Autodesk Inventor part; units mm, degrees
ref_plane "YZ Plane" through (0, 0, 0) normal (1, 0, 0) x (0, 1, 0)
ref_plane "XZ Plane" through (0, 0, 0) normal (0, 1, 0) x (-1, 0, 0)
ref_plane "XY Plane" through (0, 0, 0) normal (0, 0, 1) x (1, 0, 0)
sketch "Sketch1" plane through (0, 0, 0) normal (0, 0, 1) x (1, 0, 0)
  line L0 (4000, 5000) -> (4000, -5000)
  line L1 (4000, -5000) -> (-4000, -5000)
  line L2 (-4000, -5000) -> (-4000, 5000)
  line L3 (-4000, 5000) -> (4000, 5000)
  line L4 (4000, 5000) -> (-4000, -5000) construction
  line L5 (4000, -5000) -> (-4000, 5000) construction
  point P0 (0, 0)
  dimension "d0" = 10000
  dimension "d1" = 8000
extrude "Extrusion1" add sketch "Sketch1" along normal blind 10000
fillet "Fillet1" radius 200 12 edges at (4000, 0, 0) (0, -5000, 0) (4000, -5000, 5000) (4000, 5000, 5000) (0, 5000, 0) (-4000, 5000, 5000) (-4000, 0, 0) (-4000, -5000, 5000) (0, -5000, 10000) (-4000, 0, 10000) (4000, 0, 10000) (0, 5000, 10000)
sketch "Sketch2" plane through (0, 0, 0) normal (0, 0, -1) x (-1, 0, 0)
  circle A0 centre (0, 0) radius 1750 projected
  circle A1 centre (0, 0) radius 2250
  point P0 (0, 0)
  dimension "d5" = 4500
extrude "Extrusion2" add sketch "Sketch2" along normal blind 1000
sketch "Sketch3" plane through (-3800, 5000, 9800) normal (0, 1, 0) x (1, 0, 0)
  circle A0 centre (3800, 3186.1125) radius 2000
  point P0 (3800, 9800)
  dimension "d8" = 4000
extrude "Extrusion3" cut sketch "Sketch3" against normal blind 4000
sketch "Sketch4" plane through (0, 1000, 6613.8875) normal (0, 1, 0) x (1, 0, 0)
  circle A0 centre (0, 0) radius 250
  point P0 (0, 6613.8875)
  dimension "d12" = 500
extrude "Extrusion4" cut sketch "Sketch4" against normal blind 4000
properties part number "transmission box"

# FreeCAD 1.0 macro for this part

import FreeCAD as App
import Part
import Sketcher
from FreeCAD import Vector


def add_polygon(sketch, points):
    """Adds a closed chain of lines whose ends are joined by coincident constraints."""
    first, n = sketch.GeometryCount, len(points)
    for a, b in zip(points, points[1:] + points[:1]):
        sketch.addGeometry(Part.LineSegment(App.Vector(*a, 0), App.Vector(*b, 0)), False)
    for i in range(n):
        sketch.addConstraint(Sketcher.Constraint("Coincident", first + i, 2, first + (i + 1) % n, 1))

doc = App.newDocument("Part")
body = doc.addObject("PartDesign::Body", "Body")

# Sketch on XY plane
sketch1 = doc.addObject("Sketcher::SketchObject", "Sketch")
body.addObject(sketch1)
sketch1.AttachmentSupport = (doc.XY_Plane, [""])
sketch1.MapMode = "FlatFace"
add_polygon(sketch1, [(4000, -5000), (4000, 5000), (-4000, 5000), (-4000, -5000)])  # lines 0-3
sketch1.addConstraint([
    Sketcher.Constraint("Vertical", 0),
    Sketcher.Constraint("Horizontal", 1),
    Sketcher.Constraint("Vertical", 2),
    Sketcher.Constraint("Horizontal", 3),
    Sketcher.Constraint("Symmetric", 0, 2, 2, 2, -1, 1),
    Sketcher.Constraint("DistanceX", 1, 2, 1, 1, 8000.0),
    Sketcher.Constraint("DistanceY", 0, 1, 0, 2, 10000.0),
])
pad1 = doc.addObject("PartDesign::Pad", "Pad")
body.addObject(pad1)
pad1.Profile = sketch1
pad1.Length = 10000
doc.recompute()

fillet = doc.addObject("PartDesign::Fillet", "Fillet")
body.addObject(fillet)
fillet.Base = (pad1, ["Edge1"])
fillet.UseAllEdges = True
fillet.Radius = 200

# Sketch on XY plane
sketch2 = doc.addObject("Sketcher::SketchObject", "Sketch001")
body.addObject(sketch2)
sketch2.AttachmentSupport = (doc.XY_Plane, [""])
sketch2.MapMode = "FlatFace"
sketch2.addGeometry([
    Part.Circle(Vector(0, 0, 0), Vector(0, 0, 1), 2250),
    Part.Circle(Vector(0, 0, 0), Vector(0, 0, 1), 1750),
], False)
sketch2.addConstraint([
    Sketcher.Constraint("Coincident", 0, 3, -1, 1),
    Sketcher.Constraint("Coincident", 1, 3, -1, 1),
    Sketcher.Constraint("Diameter", 0, 4500.0),
    Sketcher.Constraint("Diameter", 1, 3500.0),
])
pad2 = doc.addObject("PartDesign::Pad", "Pad001")
body.addObject(pad2)
pad2.Profile = sketch2
pad2.Length = 1000
pad2.Reversed = True

# Sketch on XZ plane
sketch3 = doc.addObject("Sketcher::SketchObject", "Sketch002")
body.addObject(sketch3)
sketch3.AttachmentSupport = (doc.XZ_Plane, [""])
sketch3.MapMode = "FlatFace"
sketch3.AttachmentOffset = App.Placement(Vector(0, 0, -5000), App.Rotation())
sketch3.addGeometry(Part.Circle(Vector(0, 6614, 0), Vector(0, 0, 1), 2000), False)
sketch3.addConstraint([
    Sketcher.Constraint("PointOnObject", 0, 3, -2),
    Sketcher.Constraint("Diameter", 0, 4000.0),
    Sketcher.Constraint("DistanceY", -1, 1, 0, 3, 6613.8875),
])
pocket1 = doc.addObject("PartDesign::Pocket", "Pocket")
body.addObject(pocket1)
pocket1.Profile = sketch3
pocket1.Length = 4000
pocket1.Reversed = True

# Sketch on XZ plane
sketch4 = doc.addObject("Sketcher::SketchObject", "Sketch003")
body.addObject(sketch4)
sketch4.AttachmentSupport = (doc.XZ_Plane, [""])
sketch4.MapMode = "FlatFace"
sketch4.AttachmentOffset = App.Placement(Vector(0, 0, -1000), App.Rotation())
sketch4.addGeometry(Part.Circle(Vector(0, 6614, 0), Vector(0, 0, 1), 250), False)
sketch4.addConstraint([
    Sketcher.Constraint("PointOnObject", 0, 3, -2),
    Sketcher.Constraint("Diameter", 0, 500.0),
    Sketcher.Constraint("DistanceY", -1, 1, 0, 3, 6613.8875),
])
pocket2 = doc.addObject("PartDesign::Pocket", "Pocket001")
body.addObject(pocket2)
pocket2.Profile = sketch4
pocket2.Length = 4000
pocket2.Reversed = True

doc.recompute()
